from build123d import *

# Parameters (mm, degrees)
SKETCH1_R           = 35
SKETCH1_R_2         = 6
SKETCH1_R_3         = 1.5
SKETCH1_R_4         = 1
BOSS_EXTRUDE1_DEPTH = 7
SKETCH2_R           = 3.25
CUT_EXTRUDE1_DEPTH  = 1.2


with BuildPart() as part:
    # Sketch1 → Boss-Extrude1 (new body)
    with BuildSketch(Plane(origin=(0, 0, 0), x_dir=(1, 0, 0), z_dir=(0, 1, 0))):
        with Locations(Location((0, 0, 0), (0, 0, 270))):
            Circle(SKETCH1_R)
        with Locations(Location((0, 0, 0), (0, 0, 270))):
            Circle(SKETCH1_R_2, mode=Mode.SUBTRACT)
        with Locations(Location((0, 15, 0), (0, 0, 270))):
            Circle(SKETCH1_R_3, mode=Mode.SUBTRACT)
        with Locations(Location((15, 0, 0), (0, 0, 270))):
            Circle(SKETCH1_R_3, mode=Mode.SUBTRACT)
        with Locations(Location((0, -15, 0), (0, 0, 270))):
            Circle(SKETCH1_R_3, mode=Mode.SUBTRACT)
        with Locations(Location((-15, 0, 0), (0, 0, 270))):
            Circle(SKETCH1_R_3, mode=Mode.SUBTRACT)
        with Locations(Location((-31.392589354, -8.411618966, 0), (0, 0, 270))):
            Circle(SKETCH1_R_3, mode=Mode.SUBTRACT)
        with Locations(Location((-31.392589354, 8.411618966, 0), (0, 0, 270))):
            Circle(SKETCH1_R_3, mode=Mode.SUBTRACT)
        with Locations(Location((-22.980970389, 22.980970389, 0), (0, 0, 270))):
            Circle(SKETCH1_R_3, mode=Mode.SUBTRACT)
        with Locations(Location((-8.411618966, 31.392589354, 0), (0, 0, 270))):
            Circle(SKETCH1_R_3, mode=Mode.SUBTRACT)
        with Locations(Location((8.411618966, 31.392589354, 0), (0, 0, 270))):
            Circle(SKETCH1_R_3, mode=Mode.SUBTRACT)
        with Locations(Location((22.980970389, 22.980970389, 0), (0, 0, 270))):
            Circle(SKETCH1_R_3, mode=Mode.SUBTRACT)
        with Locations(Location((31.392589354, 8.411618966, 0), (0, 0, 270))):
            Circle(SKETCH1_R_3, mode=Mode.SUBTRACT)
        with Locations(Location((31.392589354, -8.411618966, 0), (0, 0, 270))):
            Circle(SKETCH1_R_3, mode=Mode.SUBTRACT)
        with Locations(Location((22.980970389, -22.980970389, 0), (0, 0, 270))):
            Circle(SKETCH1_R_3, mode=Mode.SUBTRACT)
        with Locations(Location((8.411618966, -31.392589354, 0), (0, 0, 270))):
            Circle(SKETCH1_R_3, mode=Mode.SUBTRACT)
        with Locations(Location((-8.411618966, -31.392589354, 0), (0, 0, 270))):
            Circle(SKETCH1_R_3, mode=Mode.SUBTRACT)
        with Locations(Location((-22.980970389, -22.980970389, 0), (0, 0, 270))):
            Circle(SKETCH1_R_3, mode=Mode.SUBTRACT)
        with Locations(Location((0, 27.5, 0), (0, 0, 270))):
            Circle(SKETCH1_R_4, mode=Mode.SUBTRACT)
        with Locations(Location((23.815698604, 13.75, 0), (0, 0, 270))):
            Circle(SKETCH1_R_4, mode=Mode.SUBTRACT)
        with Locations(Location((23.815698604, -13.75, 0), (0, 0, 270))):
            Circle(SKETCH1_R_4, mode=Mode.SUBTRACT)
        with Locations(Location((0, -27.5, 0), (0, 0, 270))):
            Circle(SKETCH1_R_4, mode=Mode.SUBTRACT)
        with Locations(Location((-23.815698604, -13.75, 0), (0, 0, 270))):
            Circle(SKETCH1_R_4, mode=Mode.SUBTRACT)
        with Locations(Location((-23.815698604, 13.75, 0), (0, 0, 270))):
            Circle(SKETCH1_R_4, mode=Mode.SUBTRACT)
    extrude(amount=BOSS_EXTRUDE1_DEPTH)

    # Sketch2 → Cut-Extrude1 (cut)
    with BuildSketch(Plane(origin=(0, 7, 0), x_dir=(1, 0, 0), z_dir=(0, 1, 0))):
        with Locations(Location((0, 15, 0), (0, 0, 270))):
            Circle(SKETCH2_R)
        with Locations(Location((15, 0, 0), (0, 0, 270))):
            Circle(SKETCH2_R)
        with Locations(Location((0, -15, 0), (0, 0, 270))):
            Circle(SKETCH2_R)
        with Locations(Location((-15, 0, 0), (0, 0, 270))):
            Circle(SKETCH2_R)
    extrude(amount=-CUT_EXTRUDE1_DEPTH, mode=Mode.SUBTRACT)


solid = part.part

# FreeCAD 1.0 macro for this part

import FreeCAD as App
import Part
import Sketcher

V = App.Vector

doc = App.newDocument("Part")
params = doc.addObject("Spreadsheet::Sheet", "Params")
for row, (alias, value) in enumerate([
    ("sketch1_diameter", "70 mm"),
    ("sketch1_diameter2", "3 mm"),
    ("sketch1_diameter3", "2 mm"),
    ("sketch1_diameter4", "12 mm"),
    ("pad1_length", "7 mm"),
    ("sketch2_diameter", "6.5 mm"),
    ("pocket1_length", "1.2 mm"),
], start=1):
    params.set(f"A{row}", alias)
    params.set(f"B{row}", "=" + value)
    params.setAlias(f"B{row}", alias)

body = doc.addObject("PartDesign::Body", "Body")

# Sketch on XZ plane
sketch1 = body.newObject("Sketcher::SketchObject", "Sketch")
sketch1.AttachmentSupport = (doc.getObject("XZ_Plane"), [""])
sketch1.MapMode = "FlatFace"
sketch1.addGeometry(Part.Circle(V(0, 0, 0), V(0, 0, 1), 35), False)
sketch1.addGeometry(Part.Circle(V(-23, -23, 0), V(0, 0, 1), 1.5), False)
sketch1.addGeometry(Part.Circle(V(-31.4, -8.4, 0), V(0, 0, 1), 1.5), False)
sketch1.addGeometry(Part.Circle(V(-23.8, -13.8, 0), V(0, 0, 1), 1), False)
sketch1.addGeometry(Part.Circle(V(-8.4, -31.4, 0), V(0, 0, 1), 1.5), False)
sketch1.addGeometry(Part.Circle(V(-31.4, 8.4, 0), V(0, 0, 1), 1.5), False)
sketch1.addGeometry(Part.Circle(V(-23.8, 13.8, 0), V(0, 0, 1), 1), False)
sketch1.addGeometry(Part.Circle(V(-23, 23, 0), V(0, 0, 1), 1.5), False)
sketch1.addGeometry(Part.Circle(V(-15, 0, 0), V(0, 0, 1), 1.5), False)
sketch1.addGeometry(Part.Circle(V(-8.4, 31.4, 0), V(0, 0, 1), 1.5), False)
sketch1.addGeometry(Part.Circle(V(0, -27.5, 0), V(0, 0, 1), 1), False)
sketch1.addGeometry(Part.Circle(V(8.4, -31.4, 0), V(0, 0, 1), 1.5), False)
sketch1.addGeometry(Part.Circle(V(0, -15, 0), V(0, 0, 1), 1.5), False)
sketch1.addGeometry(Part.Circle(V(23, -23, 0), V(0, 0, 1), 1.5), False)
sketch1.addGeometry(Part.Circle(V(23.8, -13.8, 0), V(0, 0, 1), 1), False)
sketch1.addGeometry(Part.Circle(V(31.4, -8.4, 0), V(0, 0, 1), 1.5), False)
sketch1.addGeometry(Part.Circle(V(0, 0, 0), V(0, 0, 1), 6), False)
sketch1.addGeometry(Part.Circle(V(0, 15, 0), V(0, 0, 1), 1.5), False)
sketch1.addGeometry(Part.Circle(V(15, 0, 0), V(0, 0, 1), 1.5), False)
sketch1.addGeometry(Part.Circle(V(0, 27.5, 0), V(0, 0, 1), 1), False)
sketch1.addGeometry(Part.Circle(V(8.4, 31.4, 0), V(0, 0, 1), 1.5), False)
sketch1.addGeometry(Part.Circle(V(23.8, 13.8, 0), V(0, 0, 1), 1), False)
sketch1.addGeometry(Part.Circle(V(31.4, 8.4, 0), V(0, 0, 1), 1.5), False)
sketch1.addGeometry(Part.Circle(V(23, 23, 0), V(0, 0, 1), 1.5), False)
sketch1.addConstraint(Sketcher.Constraint("Coincident", 0, 3, -1, 1))
sketch1.addConstraint(Sketcher.Constraint("Coincident", 16, 3, -1, 1))
sketch1.addConstraint(Sketcher.Constraint("Equal", 1, 2))
sketch1.addConstraint(Sketcher.Constraint("Equal", 2, 4))
sketch1.addConstraint(Sketcher.Constraint("Equal", 4, 5))
sketch1.addConstraint(Sketcher.Constraint("Equal", 3, 6))
sketch1.addConstraint(Sketcher.Constraint("Equal", 5, 7))
sketch1.addConstraint(Sketcher.Constraint("Equal", 7, 8))
sketch1.addConstraint(Sketcher.Constraint("Equal", 8, 9))
sketch1.addConstraint(Sketcher.Constraint("Equal", 6, 10))
sketch1.addConstraint(Sketcher.Constraint("Equal", 9, 11))
sketch1.addConstraint(Sketcher.Constraint("Equal", 11, 12))
sketch1.addConstraint(Sketcher.Constraint("Equal", 12, 13))
sketch1.addConstraint(Sketcher.Constraint("Equal", 10, 14))
sketch1.addConstraint(Sketcher.Constraint("Equal", 13, 15))
sketch1.addConstraint(Sketcher.Constraint("Equal", 15, 17))
sketch1.addConstraint(Sketcher.Constraint("Equal", 17, 18))
sketch1.addConstraint(Sketcher.Constraint("Equal", 14, 19))
sketch1.addConstraint(Sketcher.Constraint("Equal", 18, 20))
sketch1.addConstraint(Sketcher.Constraint("Equal", 19, 21))
sketch1.addConstraint(Sketcher.Constraint("Equal", 20, 22))
sketch1.addConstraint(Sketcher.Constraint("Equal", 22, 23))
sketch1.addConstraint(Sketcher.Constraint("Symmetric", 9, 3, 11, 3, -1, 1))
sketch1.addConstraint(Sketcher.Constraint("Symmetric", 7, 3, 13, 3, -1, 1))
sketch1.addConstraint(Sketcher.Constraint("Symmetric", 6, 3, 14, 3, -1, 1))
sketch1.addConstraint(Sketcher.Constraint("Symmetric", 5, 3, 15, 3, -1, 1))
sketch1.addConstraint(Sketcher.Constraint("Symmetric", 12, 3, 17, 3, -1, 1))
sketch1.addConstraint(Sketcher.Constraint("Symmetric", 8, 3, 18, 3, -1, 1))
sketch1.addConstraint(Sketcher.Constraint("Symmetric", 10, 3, 19, 3, -1, 1))
sketch1.addConstraint(Sketcher.Constraint("Symmetric", 4, 3, 20, 3, -1, 1))
sketch1.addConstraint(Sketcher.Constraint("Symmetric", 3, 3, 21, 3, -1, 1))
sketch1.addConstraint(Sketcher.Constraint("Symmetric", 2, 3, 22, 3, -1, 1))
sketch1.addConstraint(Sketcher.Constraint("Symmetric", 1, 3, 23, 3, -1, 1))
sketch1.addConstraint(Sketcher.Constraint("Symmetric", 4, 3, 11, 3, -2))
sketch1.addConstraint(Sketcher.Constraint("Symmetric", 1, 3, 13, 3, -2))
sketch1.addConstraint(Sketcher.Constraint("Symmetric", 3, 3, 14, 3, -2))
sketch1.addConstraint(Sketcher.Constraint("Symmetric", 2, 3, 15, 3, -2))
sketch1.addConstraint(Sketcher.Constraint("PointOnObject", 8, 3, -1))
sketch1.addConstraint(Sketcher.Constraint("PointOnObject", 10, 3, -2))
sketch1.addConstraint(Sketcher.Constraint("PointOnObject", 12, 3, -2))
sketch1.addConstraint(Sketcher.Constraint("Diameter", 0, 70.0))
sketch1.addConstraint(Sketcher.Constraint("Diameter", 1, 3.0))
sketch1.addConstraint(Sketcher.Constraint("Diameter", 3, 2.0))
sketch1.addConstraint(Sketcher.Constraint("Diameter", 16, 12.0))
sketch1.addConstraint(Sketcher.Constraint("DistanceX", 8, 3, -1, 1, 15.0))
sketch1.addConstraint(Sketcher.Constraint("DistanceY", 12, 3, -1, 1, 15.0))
sketch1.addConstraint(Sketcher.Constraint("DistanceY", 10, 3, -1, 1, 27.5))
sketch1.addConstraint(Sketcher.Constraint("DistanceY", 3, 3, 6, 3, 27.5))
sketch1.addConstraint(Sketcher.Constraint("DistanceX", 3, 3, -1, 1, 23.815699))
sketch1.addConstraint(Sketcher.Constraint("DistanceX", 1, 3, -1, 1, 22.98097))
sketch1.addConstraint(Sketcher.Constraint("DistanceY", 1, 3, -1, 1, 22.98097))
sketch1.addConstraint(Sketcher.Constraint("DistanceX", 2, 3, -1, 1, 31.392589))
sketch1.addConstraint(Sketcher.Constraint("DistanceY", 2, 3, -1, 1, 8.411619))
sketch1.addConstraint(Sketcher.Constraint("DistanceX", 4, 3, -1, 1, 8.411619))
sketch1.addConstraint(Sketcher.Constraint("DistanceY", 4, 3, -1, 1, 31.392589))
sketch1.setExpression("Constraints[40]", "Params.sketch1_diameter")
sketch1.setExpression("Constraints[41]", "Params.sketch1_diameter2")
sketch1.setExpression("Constraints[42]", "Params.sketch1_diameter3")
sketch1.setExpression("Constraints[43]", "Params.sketch1_diameter4")
pad1 = body.newObject("PartDesign::Pad", "Pad")
pad1.Profile = sketch1
pad1.setExpression("Length", "Params.pad1_length")
pad1.Reversed = True

# Sketch on XZ plane
sketch2 = body.newObject("Sketcher::SketchObject", "Sketch001")
sketch2.AttachmentSupport = (doc.getObject("XZ_Plane"), [""])
sketch2.MapMode = "FlatFace"
sketch2.AttachmentOffset = App.Placement(V(0, 0, -7), App.Rotation())
sketch2.addGeometry(Part.Circle(V(0, -15, 0), V(0, 0, 1), 3.2), False)
sketch2.addGeometry(Part.Circle(V(15, 0, 0), V(0, 0, 1), 3.2), False)
sketch2.addGeometry(Part.Circle(V(0, 15, 0), V(0, 0, 1), 3.2), False)
sketch2.addGeometry(Part.Circle(V(-15, 0, 0), V(0, 0, 1), 3.2), False)
sketch2.addConstraint(Sketcher.Constraint("Equal", 0, 1))
sketch2.addConstraint(Sketcher.Constraint("Equal", 1, 2))
sketch2.addConstraint(Sketcher.Constraint("Equal", 2, 3))
sketch2.addConstraint(Sketcher.Constraint("Symmetric", 0, 3, 2, 3, -1, 1))
sketch2.addConstraint(Sketcher.Constraint("Symmetric", 1, 3, 3, 3, -1, 1))
sketch2.addConstraint(Sketcher.Constraint("PointOnObject", 0, 3, -2))
sketch2.addConstraint(Sketcher.Constraint("PointOnObject", 1, 3, -1))
sketch2.addConstraint(Sketcher.Constraint("Diameter", 0, 6.5))
sketch2.addConstraint(Sketcher.Constraint("DistanceY", 0, 3, -1, 1, 15.0))
sketch2.addConstraint(Sketcher.Constraint("DistanceX", -1, 1, 1, 3, 15.0))
sketch2.setExpression("Constraints[7]", "Params.sketch2_diameter")
pocket1 = body.newObject("PartDesign::Pocket", "Pocket")
pocket1.Profile = sketch2
pocket1.setExpression("Length", "Params.pocket1_length")
pocket1.Reversed = True

doc.recompute()
